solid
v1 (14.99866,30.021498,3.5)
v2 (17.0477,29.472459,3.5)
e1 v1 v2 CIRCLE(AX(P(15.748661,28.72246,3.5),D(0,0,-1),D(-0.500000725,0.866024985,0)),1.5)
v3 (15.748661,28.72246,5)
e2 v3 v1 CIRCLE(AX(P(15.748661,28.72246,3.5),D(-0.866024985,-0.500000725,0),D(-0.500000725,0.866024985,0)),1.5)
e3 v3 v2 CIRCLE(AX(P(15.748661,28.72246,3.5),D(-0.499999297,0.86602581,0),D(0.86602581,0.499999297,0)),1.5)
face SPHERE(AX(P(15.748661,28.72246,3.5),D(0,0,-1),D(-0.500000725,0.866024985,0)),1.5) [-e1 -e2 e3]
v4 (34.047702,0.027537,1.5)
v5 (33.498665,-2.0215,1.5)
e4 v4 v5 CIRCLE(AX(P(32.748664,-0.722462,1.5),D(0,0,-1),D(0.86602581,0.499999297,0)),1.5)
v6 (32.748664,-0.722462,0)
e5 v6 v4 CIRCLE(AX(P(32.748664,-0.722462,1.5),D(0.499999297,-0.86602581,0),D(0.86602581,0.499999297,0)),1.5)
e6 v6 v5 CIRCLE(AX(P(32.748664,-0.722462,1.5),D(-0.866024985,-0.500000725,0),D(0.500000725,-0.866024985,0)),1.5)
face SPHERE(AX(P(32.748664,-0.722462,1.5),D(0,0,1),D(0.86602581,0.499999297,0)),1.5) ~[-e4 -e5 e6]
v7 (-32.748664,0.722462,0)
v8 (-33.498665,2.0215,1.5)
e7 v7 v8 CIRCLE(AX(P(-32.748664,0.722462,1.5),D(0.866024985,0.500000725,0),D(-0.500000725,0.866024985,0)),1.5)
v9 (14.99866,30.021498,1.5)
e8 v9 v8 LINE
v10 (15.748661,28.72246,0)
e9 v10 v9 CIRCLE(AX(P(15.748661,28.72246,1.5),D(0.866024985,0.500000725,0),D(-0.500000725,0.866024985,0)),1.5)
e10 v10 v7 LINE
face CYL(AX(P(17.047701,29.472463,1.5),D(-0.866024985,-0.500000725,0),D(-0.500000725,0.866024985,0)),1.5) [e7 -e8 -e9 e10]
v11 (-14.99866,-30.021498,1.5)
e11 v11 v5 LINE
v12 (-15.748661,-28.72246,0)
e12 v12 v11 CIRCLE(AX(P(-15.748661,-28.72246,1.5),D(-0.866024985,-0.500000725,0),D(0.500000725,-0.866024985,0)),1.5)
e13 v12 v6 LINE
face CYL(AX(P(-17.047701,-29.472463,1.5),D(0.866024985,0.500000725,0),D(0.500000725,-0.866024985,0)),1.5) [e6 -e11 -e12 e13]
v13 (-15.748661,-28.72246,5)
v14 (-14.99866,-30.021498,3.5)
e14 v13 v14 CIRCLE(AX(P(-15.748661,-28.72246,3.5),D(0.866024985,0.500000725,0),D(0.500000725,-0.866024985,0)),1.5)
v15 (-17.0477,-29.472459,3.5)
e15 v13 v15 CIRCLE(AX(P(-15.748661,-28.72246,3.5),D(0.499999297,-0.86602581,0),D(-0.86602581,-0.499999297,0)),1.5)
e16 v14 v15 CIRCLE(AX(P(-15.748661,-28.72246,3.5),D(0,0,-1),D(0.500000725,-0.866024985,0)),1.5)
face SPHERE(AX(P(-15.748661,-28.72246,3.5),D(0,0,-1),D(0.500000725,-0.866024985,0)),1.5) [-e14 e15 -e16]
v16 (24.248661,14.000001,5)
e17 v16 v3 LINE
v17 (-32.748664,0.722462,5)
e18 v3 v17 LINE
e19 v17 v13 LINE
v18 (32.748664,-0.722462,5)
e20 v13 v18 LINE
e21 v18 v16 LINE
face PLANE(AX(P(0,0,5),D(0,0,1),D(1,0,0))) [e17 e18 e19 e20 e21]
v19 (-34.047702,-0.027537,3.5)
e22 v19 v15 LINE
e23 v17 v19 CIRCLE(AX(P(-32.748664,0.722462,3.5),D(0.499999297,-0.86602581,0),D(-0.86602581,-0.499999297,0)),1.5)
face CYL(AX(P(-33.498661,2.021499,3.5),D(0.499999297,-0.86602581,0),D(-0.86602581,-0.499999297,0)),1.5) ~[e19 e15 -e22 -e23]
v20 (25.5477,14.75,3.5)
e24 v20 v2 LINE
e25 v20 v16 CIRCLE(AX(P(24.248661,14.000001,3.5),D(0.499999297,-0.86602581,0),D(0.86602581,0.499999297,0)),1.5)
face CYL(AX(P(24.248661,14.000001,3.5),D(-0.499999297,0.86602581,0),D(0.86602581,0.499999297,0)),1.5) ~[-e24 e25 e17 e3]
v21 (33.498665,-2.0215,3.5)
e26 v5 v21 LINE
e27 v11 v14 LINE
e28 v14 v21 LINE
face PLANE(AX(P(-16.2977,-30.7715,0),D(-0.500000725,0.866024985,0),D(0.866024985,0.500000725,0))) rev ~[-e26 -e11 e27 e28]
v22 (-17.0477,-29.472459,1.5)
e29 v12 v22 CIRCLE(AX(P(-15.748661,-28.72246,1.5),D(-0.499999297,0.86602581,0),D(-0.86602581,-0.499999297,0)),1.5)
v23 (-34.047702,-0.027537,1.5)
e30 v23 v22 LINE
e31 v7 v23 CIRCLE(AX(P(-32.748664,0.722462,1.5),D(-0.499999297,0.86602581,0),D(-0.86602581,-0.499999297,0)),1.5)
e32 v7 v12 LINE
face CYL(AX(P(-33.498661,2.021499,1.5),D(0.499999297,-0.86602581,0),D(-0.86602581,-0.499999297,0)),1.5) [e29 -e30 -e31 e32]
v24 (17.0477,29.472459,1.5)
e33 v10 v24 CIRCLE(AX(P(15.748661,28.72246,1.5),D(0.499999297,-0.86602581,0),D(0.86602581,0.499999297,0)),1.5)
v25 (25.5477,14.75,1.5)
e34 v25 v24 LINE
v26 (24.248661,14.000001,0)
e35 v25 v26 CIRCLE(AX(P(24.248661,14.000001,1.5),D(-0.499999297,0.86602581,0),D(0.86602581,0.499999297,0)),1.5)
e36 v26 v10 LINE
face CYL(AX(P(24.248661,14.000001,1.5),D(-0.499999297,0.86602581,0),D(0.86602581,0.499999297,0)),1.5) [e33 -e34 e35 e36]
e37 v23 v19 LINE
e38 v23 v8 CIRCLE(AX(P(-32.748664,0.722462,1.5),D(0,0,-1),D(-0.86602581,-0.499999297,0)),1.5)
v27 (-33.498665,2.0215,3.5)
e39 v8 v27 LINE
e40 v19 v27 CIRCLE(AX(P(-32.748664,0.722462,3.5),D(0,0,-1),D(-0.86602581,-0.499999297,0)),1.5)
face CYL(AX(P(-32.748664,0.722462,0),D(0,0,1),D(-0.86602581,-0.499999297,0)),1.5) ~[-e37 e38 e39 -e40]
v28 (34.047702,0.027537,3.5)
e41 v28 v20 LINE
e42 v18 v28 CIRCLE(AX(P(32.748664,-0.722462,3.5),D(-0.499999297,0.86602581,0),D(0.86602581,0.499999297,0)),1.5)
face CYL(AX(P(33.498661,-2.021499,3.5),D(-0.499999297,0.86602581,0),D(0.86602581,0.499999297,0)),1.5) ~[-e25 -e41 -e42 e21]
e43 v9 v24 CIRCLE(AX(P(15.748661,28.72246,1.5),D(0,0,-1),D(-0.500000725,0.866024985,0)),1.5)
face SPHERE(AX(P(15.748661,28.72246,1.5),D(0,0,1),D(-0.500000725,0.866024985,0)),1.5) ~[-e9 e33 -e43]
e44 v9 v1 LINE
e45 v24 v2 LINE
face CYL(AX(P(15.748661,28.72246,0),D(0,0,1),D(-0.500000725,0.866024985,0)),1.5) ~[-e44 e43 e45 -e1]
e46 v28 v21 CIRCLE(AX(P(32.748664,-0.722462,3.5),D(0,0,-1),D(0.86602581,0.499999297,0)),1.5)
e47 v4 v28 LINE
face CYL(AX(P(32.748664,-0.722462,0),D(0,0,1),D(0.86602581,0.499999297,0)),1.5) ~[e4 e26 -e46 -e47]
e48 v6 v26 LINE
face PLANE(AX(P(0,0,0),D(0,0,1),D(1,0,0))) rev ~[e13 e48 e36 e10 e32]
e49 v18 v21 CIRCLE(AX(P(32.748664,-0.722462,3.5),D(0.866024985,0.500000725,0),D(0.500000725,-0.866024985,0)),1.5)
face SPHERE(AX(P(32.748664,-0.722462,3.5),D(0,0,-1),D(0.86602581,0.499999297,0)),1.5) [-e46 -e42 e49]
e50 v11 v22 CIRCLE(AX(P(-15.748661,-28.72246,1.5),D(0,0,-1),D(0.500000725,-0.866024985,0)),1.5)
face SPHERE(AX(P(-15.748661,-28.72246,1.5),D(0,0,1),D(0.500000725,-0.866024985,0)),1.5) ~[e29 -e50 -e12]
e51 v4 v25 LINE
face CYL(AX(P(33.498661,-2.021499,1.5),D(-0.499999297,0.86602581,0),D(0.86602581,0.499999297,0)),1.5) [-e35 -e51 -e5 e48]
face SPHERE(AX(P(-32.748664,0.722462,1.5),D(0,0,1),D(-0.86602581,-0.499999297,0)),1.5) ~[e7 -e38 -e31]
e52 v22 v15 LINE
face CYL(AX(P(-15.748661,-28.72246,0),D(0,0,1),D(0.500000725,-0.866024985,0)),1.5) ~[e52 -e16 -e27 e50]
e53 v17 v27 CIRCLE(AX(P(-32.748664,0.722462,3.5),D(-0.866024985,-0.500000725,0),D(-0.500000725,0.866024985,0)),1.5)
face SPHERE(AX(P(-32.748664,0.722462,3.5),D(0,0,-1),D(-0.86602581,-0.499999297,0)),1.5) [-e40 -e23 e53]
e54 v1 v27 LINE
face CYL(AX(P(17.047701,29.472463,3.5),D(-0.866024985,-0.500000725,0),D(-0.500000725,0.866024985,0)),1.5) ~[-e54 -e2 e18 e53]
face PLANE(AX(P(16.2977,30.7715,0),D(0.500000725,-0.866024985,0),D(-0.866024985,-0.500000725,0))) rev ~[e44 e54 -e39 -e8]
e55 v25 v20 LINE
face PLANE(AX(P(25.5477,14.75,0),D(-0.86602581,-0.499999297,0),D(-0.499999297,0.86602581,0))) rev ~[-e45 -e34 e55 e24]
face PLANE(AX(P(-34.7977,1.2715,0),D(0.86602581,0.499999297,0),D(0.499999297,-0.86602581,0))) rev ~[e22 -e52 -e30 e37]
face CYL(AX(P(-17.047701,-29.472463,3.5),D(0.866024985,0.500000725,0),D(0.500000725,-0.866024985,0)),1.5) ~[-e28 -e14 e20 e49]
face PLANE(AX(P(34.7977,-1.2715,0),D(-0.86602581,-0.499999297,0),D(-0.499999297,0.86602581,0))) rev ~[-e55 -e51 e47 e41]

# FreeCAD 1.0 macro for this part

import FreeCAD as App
import Part
import Sketcher
from FreeCAD import Vector
Q = App.Units.Quantity


def add_polygon(sketch, points):
    """Adds a closed chain of lines whose ends are joined by coincident constraints."""
    first, n = sketch.GeometryCount, len(points)
    for a, b in zip(points, points[1:] + points[:1]):
        sketch.addGeometry(Part.LineSegment(App.Vector(*a, 0), App.Vector(*b, 0)), False)
    for i in range(n):
        sketch.addConstraint(Sketcher.Constraint("Coincident", first + i, 2, first + (i + 1) % n, 1))

doc = App.newDocument("Part")
params = doc.addObject("Spreadsheet::Sheet", "Params")
for row, (alias, value) in enumerate([
    ("pad1_length", "5 mm"),
    ("fillet_radius", "1.5 mm"),
], start=1):
    params.set(f"A{row}", alias)
    params.set(f"B{row}", "=" + value)
    params.setAlias(f"B{row}", alias)

body = doc.addObject("PartDesign::Body", "Body")

sketch1 = doc.addObject("Sketcher::SketchObject", "Sketch")
body.addObject(sketch1)
sketch1.AttachmentSupport = (doc.XY_Plane, [""])
sketch1.MapMode = "FlatFace"
add_polygon(sketch1, [(35, -1), (16, 31), (-35, 1), (-16, -31)])
sketch1.addConstraint(Sketcher.Constraint("Symmetric", 0, 2, 2, 2, -1, 1))
sketch1.addConstraint(Sketcher.Constraint("Symmetric", 1, 2, 3, 2, -1, 1))
sketch1.addConstraint(Sketcher.Constraint("Perpendicular", 0, 1))
sketch1.addConstraint(Sketcher.Constraint("Angle", 3, Q("30 deg")))
sketch1.addConstraint(Sketcher.Constraint("DistanceY", 1, 2, 0, 2, 29.5))
sketch1.addConstraint(Sketcher.Constraint("DistanceX", 1, 2, 2, 2, 18.5))
pad1 = doc.addObject("PartDesign::Pad", "Pad")
body.addObject(pad1)
pad1.Profile = sketch1
pad1.setExpression("Length", "Params.pad1_length")
doc.recompute()

fillet = doc.addObject("PartDesign::Fillet", "Fillet")
body.addObject(fillet)
fillet.Base = (pad1, ["Edge1"])
fillet.UseAllEdges = True
fillet.setExpression("Radius", "Params.fillet_radius")

doc.recompute()
